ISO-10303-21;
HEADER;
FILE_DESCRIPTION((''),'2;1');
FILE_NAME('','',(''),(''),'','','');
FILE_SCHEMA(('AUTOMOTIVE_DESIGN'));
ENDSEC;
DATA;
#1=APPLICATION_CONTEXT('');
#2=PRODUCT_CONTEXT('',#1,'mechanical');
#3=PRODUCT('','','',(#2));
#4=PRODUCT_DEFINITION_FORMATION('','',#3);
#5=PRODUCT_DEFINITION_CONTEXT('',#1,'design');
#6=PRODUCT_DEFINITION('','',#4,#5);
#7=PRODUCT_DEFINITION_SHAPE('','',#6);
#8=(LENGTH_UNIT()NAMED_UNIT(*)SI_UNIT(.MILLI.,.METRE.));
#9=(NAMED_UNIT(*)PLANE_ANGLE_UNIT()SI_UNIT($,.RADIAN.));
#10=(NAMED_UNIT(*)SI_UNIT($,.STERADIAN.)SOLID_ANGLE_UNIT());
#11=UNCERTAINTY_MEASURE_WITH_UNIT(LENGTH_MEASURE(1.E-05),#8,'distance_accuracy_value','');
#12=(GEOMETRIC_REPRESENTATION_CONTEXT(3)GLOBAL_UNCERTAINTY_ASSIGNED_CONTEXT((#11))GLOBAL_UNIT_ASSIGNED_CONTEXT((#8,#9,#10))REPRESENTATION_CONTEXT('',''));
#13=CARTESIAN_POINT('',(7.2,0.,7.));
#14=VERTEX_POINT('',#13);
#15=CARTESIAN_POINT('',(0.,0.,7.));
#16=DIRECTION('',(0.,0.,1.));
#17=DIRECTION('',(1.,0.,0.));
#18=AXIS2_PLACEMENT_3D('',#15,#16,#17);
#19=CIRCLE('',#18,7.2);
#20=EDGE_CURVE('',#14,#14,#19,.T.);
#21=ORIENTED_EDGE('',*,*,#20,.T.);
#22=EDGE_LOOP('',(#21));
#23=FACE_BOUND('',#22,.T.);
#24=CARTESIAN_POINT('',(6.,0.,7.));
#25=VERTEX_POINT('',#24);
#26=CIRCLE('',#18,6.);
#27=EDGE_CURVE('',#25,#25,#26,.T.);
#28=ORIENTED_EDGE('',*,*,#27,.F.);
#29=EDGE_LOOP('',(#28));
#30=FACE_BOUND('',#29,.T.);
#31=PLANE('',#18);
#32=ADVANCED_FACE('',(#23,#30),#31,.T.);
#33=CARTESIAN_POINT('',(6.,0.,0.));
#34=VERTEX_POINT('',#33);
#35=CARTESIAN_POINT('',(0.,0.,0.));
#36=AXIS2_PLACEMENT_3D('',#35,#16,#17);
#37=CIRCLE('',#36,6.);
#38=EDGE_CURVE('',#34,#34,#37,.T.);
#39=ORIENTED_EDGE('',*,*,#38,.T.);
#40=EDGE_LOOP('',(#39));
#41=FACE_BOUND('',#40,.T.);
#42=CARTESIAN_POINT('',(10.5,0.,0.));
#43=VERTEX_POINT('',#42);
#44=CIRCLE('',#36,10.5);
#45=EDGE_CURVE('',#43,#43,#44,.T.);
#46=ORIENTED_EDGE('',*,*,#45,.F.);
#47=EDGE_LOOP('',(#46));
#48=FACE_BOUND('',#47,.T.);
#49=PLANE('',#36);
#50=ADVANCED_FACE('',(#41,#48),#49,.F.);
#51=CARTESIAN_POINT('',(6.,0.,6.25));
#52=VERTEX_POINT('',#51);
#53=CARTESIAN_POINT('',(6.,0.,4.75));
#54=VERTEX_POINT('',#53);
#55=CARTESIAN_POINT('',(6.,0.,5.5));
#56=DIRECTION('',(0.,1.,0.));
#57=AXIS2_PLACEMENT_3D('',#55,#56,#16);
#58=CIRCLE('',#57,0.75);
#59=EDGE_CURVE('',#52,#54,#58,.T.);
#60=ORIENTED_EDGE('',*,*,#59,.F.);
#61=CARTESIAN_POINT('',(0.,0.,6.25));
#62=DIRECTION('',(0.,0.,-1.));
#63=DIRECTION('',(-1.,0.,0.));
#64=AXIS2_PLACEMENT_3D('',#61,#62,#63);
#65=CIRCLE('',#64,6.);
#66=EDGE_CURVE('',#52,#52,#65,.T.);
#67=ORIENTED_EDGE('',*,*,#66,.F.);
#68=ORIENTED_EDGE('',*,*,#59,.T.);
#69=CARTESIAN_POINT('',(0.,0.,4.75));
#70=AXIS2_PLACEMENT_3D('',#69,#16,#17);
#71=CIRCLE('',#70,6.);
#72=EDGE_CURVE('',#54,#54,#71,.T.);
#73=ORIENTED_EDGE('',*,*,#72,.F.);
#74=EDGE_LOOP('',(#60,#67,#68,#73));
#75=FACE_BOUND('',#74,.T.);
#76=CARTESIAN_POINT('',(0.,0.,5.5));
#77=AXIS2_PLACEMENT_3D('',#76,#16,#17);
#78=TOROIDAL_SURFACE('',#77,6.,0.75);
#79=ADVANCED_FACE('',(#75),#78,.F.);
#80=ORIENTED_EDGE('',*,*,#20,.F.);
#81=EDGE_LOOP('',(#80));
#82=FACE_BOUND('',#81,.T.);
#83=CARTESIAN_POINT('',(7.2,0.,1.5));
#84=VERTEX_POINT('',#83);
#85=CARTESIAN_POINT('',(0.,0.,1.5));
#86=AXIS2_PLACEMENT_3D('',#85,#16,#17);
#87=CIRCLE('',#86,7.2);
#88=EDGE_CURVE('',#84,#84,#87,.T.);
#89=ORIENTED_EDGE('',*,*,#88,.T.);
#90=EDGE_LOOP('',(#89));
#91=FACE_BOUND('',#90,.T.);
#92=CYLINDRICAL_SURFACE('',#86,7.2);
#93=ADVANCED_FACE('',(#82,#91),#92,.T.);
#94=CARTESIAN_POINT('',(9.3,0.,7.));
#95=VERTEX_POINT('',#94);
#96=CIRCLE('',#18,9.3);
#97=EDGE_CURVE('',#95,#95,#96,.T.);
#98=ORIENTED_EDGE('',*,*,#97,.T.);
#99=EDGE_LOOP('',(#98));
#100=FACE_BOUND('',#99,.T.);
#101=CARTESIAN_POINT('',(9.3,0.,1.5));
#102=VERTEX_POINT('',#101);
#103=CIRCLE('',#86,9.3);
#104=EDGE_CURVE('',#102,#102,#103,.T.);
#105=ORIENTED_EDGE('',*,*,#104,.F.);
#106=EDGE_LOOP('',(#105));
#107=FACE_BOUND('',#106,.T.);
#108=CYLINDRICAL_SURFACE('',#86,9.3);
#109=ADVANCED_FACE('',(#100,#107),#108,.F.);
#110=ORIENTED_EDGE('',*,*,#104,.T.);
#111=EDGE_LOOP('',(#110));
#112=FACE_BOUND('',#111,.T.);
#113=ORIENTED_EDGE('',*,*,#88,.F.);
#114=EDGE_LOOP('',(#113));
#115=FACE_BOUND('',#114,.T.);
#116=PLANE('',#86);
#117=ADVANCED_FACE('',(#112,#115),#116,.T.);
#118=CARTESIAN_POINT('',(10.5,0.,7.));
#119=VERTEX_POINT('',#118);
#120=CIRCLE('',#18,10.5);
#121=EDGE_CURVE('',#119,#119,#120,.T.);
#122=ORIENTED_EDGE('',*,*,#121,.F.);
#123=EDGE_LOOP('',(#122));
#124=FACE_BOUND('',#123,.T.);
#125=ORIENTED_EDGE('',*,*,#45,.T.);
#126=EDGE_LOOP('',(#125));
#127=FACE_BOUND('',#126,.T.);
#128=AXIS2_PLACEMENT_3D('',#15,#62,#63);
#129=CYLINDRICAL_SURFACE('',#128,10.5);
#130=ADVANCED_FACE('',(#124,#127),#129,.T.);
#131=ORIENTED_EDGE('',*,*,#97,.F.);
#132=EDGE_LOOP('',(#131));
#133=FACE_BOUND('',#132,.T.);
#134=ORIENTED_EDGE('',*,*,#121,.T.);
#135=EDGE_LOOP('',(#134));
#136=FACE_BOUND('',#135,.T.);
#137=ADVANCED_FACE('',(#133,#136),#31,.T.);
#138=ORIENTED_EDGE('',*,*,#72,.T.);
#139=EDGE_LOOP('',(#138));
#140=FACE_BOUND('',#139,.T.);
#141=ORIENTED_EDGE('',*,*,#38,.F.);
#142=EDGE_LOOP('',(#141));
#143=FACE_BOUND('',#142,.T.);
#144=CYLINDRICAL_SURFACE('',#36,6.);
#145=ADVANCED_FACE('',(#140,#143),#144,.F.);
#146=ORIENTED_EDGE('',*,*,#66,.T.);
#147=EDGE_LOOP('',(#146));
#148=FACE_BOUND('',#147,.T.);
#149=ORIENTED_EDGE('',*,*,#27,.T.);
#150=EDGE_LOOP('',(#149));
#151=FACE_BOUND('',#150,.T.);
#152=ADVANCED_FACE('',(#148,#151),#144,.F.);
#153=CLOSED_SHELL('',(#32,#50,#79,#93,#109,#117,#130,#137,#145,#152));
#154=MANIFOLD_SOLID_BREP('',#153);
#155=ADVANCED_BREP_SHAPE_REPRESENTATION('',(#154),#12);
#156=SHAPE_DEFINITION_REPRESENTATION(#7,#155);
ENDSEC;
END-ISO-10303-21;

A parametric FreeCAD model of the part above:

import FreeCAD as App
import Part
import Sketcher
from FreeCAD import Vector
Q = App.Units.Quantity

doc = App.newDocument("Part")
body = doc.addObject("PartDesign::Body", "Body")

# Sketch on XY plane
sketch1 = doc.addObject("Sketcher::SketchObject", "Sketch")
body.addObject(sketch1)
sketch1.AttachmentSupport = (doc.XY_Plane, [""])
sketch1.MapMode = "FlatFace"
sketch1.addGeometry(Part.Circle(Vector(0, 0, 0), Vector(0, 0, 1), 10.5), False)
sketch1.addConstraint([
    Sketcher.Constraint("Coincident", 0, 3, -1, 1),
    Sketcher.Constraint("Diameter", 0, Q("21 mm")),
])
pad1 = doc.addObject("PartDesign::Pad", "Pad")
body.addObject(pad1)
pad1.Profile = sketch1
pad1.Length = 7

# Sketch on XY plane
sketch2 = doc.addObject("Sketcher::SketchObject", "Sketch001")
body.addObject(sketch2)
sketch2.AttachmentSupport = (doc.XY_Plane, [""])
sketch2.MapMode = "FlatFace"
sketch2.AttachmentOffset = App.Placement(Vector(0, 0, 7), App.Rotation())
sketch2.addGeometry(Part.Circle(Vector(0, 0, 0), Vector(0, 0, 1), 6), False)
sketch2.addConstraint([
    Sketcher.Constraint("Coincident", 0, 3, -1, 1),
    Sketcher.Constraint("Diameter", 0, Q("12 mm")),
])
pocket1 = doc.addObject("PartDesign::Pocket", "Pocket")
body.addObject(pocket1)
pocket1.Profile = sketch2
pocket1.Type = "ThroughAll"

# Sketch on XY plane
sketch3 = doc.addObject("Sketcher::SketchObject", "Sketch002")
body.addObject(sketch3)
sketch3.AttachmentSupport = (doc.XY_Plane, [""])
sketch3.MapMode = "FlatFace"
sketch3.AttachmentOffset = App.Placement(Vector(0, 0, 7), App.Rotation())
sketch3.addGeometry([
    Part.Circle(Vector(0, 0, 0), Vector(0, 0, 1), 9.3),
    Part.Circle(Vector(0, 0, 0), Vector(0, 0, 1), 7.2),
], False)
sketch3.addConstraint([
    Sketcher.Constraint("Coincident", 0, 3, -1, 1),
    Sketcher.Constraint("Coincident", 1, 3, -1, 1),
    Sketcher.Constraint("Diameter", 0, Q("18.6 mm")),
    Sketcher.Constraint("Diameter", 1, Q("14.4 mm")),
])
pocket2 = doc.addObject("PartDesign::Pocket", "Pocket001")
body.addObject(pocket2)
pocket2.Profile = sketch3
pocket2.Length = 5.5

# Sketch on XZ plane
sketch4 = doc.addObject("Sketcher::SketchObject", "Sketch003")
body.addObject(sketch4)
sketch4.AttachmentSupport = (doc.XZ_Plane, [""])
sketch4.MapMode = "FlatFace"
sketch4.addGeometry(Part.Circle(Vector(6, 5.5, 0), Vector(0, 0, 1), 0.75), False)
sketch4.addConstraint([
    Sketcher.Constraint("Diameter", 0, Q("1.5 mm")),
    Sketcher.Constraint("DistanceX", -1, 1, 0, 3, Q("6 mm")),
    Sketcher.Constraint("DistanceY", -1, 1, 0, 3, Q("5.5 mm")),
])

# Sketch on XY plane
sketch5 = doc.addObject("Sketcher::SketchObject", "Sketch004")
body.addObject(sketch5)
sketch5.AttachmentSupport = (doc.XY_Plane, [""])
sketch5.MapMode = "FlatFace"
sketch5.AttachmentOffset = App.Placement(Vector(0, 0, 5.5), App.Rotation())
sketch5.addGeometry(Part.Circle(Vector(0, 0, 0), Vector(0, 0, 1), 6), False)
sketch5.addConstraint([
    Sketcher.Constraint("Coincident", 0, 3, -1, 1),
    Sketcher.Constraint("Diameter", 0, Q("12 mm")),
])
doc.recompute()

subtractivepipe = doc.addObject("PartDesign::SubtractivePipe", "SubtractivePipe")
body.addObject(subtractivepipe)
subtractivepipe.Profile = sketch4
subtractivepipe.Spine = (sketch5, ["Edge1"])

doc.recompute()
